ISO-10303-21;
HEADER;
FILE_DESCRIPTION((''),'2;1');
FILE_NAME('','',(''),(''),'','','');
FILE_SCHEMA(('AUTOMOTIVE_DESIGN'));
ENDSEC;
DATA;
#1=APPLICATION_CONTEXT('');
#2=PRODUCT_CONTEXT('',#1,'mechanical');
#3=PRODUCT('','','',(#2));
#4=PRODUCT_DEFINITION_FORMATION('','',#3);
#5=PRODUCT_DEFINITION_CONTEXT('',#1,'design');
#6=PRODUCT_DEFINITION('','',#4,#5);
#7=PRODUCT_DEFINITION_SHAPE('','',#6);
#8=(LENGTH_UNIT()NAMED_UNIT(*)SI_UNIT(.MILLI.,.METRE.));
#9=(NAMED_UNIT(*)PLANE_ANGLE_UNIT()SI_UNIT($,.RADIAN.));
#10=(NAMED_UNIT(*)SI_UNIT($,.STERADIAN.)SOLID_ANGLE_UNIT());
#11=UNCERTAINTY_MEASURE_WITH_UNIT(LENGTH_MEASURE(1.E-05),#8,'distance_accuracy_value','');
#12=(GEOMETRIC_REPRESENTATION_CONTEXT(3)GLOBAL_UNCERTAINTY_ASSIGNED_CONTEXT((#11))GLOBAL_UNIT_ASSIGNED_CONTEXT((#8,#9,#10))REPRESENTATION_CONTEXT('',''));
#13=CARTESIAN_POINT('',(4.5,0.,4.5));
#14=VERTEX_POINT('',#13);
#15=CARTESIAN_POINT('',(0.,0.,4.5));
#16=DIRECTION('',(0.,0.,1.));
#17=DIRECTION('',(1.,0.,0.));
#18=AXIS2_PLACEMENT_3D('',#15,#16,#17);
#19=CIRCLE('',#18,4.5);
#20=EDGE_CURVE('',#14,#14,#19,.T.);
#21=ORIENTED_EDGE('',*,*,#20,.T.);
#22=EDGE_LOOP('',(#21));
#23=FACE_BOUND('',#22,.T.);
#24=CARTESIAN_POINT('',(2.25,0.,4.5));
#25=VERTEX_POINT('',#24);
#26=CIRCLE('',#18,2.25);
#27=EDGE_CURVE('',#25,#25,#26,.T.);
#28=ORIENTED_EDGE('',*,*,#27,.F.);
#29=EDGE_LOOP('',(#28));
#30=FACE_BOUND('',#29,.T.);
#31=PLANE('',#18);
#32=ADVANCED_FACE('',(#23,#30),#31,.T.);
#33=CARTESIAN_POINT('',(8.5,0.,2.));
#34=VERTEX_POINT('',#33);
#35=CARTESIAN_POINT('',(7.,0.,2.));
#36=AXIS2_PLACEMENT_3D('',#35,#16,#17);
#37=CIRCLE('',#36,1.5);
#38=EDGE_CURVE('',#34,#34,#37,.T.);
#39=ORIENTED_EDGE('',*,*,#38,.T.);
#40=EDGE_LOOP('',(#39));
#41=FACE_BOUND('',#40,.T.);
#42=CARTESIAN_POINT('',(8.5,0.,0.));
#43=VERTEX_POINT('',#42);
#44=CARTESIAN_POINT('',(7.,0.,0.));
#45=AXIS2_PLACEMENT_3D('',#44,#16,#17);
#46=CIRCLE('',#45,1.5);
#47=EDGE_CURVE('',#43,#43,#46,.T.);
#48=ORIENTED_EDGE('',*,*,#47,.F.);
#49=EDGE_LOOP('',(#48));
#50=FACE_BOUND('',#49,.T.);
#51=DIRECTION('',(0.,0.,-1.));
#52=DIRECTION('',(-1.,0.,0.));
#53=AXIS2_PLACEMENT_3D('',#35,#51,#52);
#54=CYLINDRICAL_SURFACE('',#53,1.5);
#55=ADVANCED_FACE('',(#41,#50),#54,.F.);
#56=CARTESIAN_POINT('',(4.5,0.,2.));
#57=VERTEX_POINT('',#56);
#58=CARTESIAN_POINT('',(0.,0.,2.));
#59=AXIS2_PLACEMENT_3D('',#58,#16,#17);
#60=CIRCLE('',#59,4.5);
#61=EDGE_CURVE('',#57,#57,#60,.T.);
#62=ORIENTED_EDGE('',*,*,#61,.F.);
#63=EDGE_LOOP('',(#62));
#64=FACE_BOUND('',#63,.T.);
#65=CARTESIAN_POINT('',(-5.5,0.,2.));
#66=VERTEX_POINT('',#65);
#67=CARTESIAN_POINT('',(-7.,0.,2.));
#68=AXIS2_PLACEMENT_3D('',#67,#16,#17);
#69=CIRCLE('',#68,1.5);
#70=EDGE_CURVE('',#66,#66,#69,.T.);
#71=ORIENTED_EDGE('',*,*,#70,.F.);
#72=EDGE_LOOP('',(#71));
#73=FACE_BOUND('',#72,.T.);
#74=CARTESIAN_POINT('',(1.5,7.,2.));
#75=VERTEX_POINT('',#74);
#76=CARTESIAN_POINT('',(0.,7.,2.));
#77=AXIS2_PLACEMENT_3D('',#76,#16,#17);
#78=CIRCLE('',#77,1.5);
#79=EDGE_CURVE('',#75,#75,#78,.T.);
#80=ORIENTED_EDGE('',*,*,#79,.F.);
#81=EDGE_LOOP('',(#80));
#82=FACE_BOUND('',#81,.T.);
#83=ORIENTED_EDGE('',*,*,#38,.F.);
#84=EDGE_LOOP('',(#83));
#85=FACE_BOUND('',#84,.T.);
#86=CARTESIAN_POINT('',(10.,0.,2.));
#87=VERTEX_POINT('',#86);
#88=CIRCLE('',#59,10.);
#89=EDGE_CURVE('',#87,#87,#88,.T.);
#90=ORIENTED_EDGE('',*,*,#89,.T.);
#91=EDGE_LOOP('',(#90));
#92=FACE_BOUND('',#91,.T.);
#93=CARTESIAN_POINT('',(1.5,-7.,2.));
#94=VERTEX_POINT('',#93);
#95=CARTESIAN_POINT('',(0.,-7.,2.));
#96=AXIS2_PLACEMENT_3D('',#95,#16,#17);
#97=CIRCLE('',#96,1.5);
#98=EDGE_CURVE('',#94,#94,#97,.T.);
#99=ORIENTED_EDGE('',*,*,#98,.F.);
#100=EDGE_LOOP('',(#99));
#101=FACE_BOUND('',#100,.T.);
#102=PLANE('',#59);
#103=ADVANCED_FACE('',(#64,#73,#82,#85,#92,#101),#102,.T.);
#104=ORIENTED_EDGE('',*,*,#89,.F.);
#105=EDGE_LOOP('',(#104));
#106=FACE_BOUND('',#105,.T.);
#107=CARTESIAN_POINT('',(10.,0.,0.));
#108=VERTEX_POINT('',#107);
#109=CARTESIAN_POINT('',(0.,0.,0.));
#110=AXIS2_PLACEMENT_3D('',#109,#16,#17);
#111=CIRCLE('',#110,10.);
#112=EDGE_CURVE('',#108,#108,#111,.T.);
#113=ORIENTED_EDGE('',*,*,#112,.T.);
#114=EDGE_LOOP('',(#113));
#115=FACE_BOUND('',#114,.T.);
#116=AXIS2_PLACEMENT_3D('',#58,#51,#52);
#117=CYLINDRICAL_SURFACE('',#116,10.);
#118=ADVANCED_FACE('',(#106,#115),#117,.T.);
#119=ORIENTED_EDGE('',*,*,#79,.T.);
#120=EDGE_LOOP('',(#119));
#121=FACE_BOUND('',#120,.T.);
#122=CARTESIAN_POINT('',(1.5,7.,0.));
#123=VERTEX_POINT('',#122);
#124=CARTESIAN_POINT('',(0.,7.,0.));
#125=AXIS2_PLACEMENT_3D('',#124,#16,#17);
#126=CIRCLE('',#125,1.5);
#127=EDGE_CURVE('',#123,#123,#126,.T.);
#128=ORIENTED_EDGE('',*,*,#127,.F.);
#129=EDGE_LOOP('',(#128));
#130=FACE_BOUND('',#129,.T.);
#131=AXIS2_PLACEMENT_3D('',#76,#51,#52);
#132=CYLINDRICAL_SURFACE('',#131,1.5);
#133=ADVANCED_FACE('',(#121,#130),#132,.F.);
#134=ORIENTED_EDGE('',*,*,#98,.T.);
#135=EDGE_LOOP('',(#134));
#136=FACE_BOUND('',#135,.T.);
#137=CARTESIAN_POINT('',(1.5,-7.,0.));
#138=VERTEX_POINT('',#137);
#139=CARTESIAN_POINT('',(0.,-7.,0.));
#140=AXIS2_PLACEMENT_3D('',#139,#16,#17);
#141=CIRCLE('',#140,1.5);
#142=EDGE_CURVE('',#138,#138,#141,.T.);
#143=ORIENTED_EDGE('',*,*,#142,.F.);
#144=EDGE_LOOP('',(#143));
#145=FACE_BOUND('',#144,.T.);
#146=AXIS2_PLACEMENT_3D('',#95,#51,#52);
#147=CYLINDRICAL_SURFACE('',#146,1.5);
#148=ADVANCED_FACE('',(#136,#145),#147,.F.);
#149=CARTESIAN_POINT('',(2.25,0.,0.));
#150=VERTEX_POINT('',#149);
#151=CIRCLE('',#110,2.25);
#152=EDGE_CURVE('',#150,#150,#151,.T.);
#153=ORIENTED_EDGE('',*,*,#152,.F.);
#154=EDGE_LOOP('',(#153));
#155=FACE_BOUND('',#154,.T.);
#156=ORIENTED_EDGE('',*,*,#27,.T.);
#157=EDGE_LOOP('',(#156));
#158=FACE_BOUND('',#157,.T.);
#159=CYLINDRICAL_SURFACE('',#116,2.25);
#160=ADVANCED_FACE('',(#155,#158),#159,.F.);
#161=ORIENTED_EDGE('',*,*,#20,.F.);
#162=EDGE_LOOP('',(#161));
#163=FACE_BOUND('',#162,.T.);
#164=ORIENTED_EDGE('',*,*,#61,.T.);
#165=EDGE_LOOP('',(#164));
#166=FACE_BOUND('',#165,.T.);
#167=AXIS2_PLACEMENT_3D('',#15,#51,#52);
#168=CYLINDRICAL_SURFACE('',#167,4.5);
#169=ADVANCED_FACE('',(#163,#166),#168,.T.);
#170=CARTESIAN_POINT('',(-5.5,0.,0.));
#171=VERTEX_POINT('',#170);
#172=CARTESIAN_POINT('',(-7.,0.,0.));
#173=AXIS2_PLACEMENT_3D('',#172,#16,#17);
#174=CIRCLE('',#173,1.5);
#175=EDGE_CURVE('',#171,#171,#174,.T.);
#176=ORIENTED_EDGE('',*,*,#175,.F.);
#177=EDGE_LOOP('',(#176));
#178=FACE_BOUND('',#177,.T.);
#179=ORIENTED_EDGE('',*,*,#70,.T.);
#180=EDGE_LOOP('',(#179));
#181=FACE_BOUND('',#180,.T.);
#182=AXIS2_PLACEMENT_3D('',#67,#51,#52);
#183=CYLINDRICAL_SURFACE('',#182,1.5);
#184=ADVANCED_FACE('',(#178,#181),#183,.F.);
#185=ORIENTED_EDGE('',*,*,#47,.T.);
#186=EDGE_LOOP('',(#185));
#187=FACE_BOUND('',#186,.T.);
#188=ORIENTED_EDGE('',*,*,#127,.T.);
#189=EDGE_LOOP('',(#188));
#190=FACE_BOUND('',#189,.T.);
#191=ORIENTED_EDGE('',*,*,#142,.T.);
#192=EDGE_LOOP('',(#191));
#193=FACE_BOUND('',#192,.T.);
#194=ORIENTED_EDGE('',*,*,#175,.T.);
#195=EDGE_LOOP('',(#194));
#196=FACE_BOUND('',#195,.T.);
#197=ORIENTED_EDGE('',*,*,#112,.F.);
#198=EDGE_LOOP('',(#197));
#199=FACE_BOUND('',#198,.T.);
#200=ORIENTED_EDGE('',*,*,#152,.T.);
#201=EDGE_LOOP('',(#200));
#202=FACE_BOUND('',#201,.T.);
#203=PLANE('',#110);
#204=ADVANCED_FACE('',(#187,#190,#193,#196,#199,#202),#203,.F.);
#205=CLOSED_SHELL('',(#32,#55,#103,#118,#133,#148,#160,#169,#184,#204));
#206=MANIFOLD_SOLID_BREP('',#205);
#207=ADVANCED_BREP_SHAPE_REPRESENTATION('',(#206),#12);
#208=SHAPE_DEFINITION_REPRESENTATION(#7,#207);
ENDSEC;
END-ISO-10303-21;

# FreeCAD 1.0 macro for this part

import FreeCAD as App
import Part
import Sketcher
from FreeCAD import Vector

doc = App.newDocument("Part")
body = doc.addObject("PartDesign::Body", "Body")

sketch1 = body.newObject("Sketcher::SketchObject", "Sketch")
sketch1.AttachmentSupport = (doc.getObject("XY_Plane"), [""])
sketch1.MapMode = "FlatFace"
sketch1.addGeometry(Part.Circle(Vector(0, 0, 0), Vector(0, 0, 1), 10), False)
sketch1.addGeometry(Part.Circle(Vector(0, -7, 0), Vector(0, 0, 1), 1.5), False)
sketch1.addGeometry(Part.Circle(Vector(-7, 0, 0), Vector(0, 0, 1), 1.5), False)
sketch1.addGeometry(Part.Circle(Vector(0, 0, 0), Vector(0, 0, 1), 2.2), False)
sketch1.addGeometry(Part.Circle(Vector(7, 0, 0), Vector(0, 0, 1), 1.5), False)
sketch1.addGeometry(Part.Circle(Vector(0, 7, 0), Vector(0, 0, 1), 1.5), False)
sketch1.addConstraint(Sketcher.Constraint("Coincident", 0, 3, -1, 1))
sketch1.addConstraint(Sketcher.Constraint("Coincident", 3, 3, -1, 1))
sketch1.addConstraint(Sketcher.Constraint("Equal", 1, 2))
sketch1.addConstraint(Sketcher.Constraint("Equal", 2, 4))
sketch1.addConstraint(Sketcher.Constraint("Equal", 4, 5))
sketch1.addConstraint(Sketcher.Constraint("Symmetric", 2, 3, 4, 3, -1, 1))
sketch1.addConstraint(Sketcher.Constraint("Symmetric", 1, 3, 5, 3, -1, 1))
sketch1.addConstraint(Sketcher.Constraint("PointOnObject", 1, 3, -2))
sketch1.addConstraint(Sketcher.Constraint("PointOnObject", 2, 3, -1))
sketch1.addConstraint(Sketcher.Constraint("Diameter", 0, 20.0))
sketch1.addConstraint(Sketcher.Constraint("Diameter", 1, 3.0))
sketch1.addConstraint(Sketcher.Constraint("Diameter", 3, 4.5))
sketch1.addConstraint(Sketcher.Constraint("DistanceY", 1, 3, -1, 1, 7.0))
sketch1.addConstraint(Sketcher.Constraint("DistanceX", 2, 3, -1, 1, 7.0))
pad1 = body.newObject("PartDesign::Pad", "Pad")
pad1.Profile = sketch1
pad1.Length = 2

sketch2 = body.newObject("Sketcher::SketchObject", "Sketch001")
sketch2.AttachmentSupport = (doc.getObject("XY_Plane"), [""])
sketch2.MapMode = "FlatFace"
sketch2.AttachmentOffset = App.Placement(Vector(0, 0, 2), App.Rotation())
sketch2.addGeometry(Part.Circle(Vector(0, 0, 0), Vector(0, 0, 1), 4.5), False)
sketch2.addGeometry(Part.Circle(Vector(0, 0, 0), Vector(0, 0, 1), 2.2), False)
sketch2.addConstraint(Sketcher.Constraint("Coincident", 0, 3, -1, 1))
sketch2.addConstraint(Sketcher.Constraint("Coincident", 1, 3, -1, 1))
sketch2.addConstraint(Sketcher.Constraint("Diameter", 0, 9.0))
sketch2.addConstraint(Sketcher.Constraint("Diameter", 1, 4.5))
pad2 = body.newObject("PartDesign::Pad", "Pad001")
pad2.Profile = sketch2
pad2.Length = 2.5

doc.recompute()
